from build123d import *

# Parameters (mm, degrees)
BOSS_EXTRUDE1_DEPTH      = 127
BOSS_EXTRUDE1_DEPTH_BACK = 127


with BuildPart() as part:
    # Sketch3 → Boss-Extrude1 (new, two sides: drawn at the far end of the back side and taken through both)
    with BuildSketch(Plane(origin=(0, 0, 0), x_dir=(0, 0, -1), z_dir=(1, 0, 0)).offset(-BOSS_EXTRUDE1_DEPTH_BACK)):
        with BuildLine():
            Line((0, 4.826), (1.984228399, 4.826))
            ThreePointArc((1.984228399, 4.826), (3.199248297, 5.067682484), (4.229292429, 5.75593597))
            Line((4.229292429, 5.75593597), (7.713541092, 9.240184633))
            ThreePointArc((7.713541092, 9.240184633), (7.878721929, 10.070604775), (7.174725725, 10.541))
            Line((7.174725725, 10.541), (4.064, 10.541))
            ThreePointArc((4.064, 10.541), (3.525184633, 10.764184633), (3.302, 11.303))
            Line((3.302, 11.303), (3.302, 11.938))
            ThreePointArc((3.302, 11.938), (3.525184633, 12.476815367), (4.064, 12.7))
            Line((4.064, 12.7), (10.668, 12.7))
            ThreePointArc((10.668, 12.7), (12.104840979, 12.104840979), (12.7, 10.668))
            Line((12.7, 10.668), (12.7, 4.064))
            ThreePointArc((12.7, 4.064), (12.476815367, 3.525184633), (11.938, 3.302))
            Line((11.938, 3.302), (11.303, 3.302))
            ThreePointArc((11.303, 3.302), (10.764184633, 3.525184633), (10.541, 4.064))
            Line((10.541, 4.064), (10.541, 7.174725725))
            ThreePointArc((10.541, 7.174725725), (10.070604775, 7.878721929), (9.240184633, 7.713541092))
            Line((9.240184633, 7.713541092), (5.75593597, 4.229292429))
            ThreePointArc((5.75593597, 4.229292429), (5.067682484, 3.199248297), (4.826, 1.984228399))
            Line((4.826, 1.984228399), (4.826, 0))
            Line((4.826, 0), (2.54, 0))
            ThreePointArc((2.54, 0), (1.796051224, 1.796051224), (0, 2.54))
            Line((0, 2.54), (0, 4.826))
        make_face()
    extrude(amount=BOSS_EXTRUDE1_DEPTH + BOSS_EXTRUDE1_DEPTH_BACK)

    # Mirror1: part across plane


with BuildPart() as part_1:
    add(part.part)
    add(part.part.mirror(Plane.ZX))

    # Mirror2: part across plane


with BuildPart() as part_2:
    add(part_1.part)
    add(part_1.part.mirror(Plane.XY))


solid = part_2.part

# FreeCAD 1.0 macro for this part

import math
import FreeCAD as App
import Part
import Sketcher

V = App.Vector
Q = App.Units.Quantity

doc = App.newDocument("Part")
body = doc.addObject("PartDesign::Body", "Body")

# Sketch on YZ plane
sketch1 = body.newObject("Sketcher::SketchObject", "Sketch")
sketch1.AttachmentSupport = (doc.getObject("YZ_Plane"), [""])
sketch1.MapMode = "FlatFace"
sketch1.addGeometry([
    Part.LineSegment(V(4.826, -1.984228, 0), V(4.826, 0, 0)),  # 0
    Part.LineSegment(V(4.826, 0, 0), V(2.54, 0, 0)),  # 1
    Part.ArcOfCircle(Part.Circle(V(0, 0, 0), V(0, 0, 1), 2.54), math.radians(-90), math.radians(0)),  # 2
    Part.LineSegment(V(0, -2.54, 0), V(0, -4.826, 0)),  # 3
    Part.LineSegment(V(0, -4.826, 0), V(1.984228, -4.826, 0)),  # 4
    Part.ArcOfCircle(Part.Circle(V(1.984228, -8.001, 0), V(0, 0, 1), 3.175), math.radians(45), math.radians(90)),  # 5
    Part.LineSegment(V(4.229292, -5.755936, 0), V(7.713541, -9.240185, 0)),  # 6
    Part.ArcOfCircle(Part.Circle(V(7.174726, -9.779, 0), V(0, 0, 1), 0.762), math.radians(-90), math.radians(45)),  # 7
    Part.LineSegment(V(7.174726, -10.541, 0), V(4.064, -10.541, 0)),  # 8
    Part.ArcOfCircle(Part.Circle(V(4.064, -11.303, 0), V(0, 0, 1), 0.762), math.radians(90), math.radians(180)),  # 9
    Part.LineSegment(V(3.302, -11.303, 0), V(3.302, -11.938, 0)),  # 10
    Part.ArcOfCircle(Part.Circle(V(4.064, -11.938, 0), V(0, 0, 1), 0.762), math.radians(-180), math.radians(-90)),  # 11
    Part.LineSegment(V(4.064, -12.7, 0), V(10.668, -12.7, 0)),  # 12
    Part.ArcOfCircle(Part.Circle(V(10.668, -10.668, 0), V(0, 0, 1), 2.032), math.radians(-90), math.radians(0)),  # 13
    Part.LineSegment(V(12.7, -10.668, 0), V(12.7, -4.064, 0)),  # 14
    Part.ArcOfCircle(Part.Circle(V(11.938, -4.064, 0), V(0, 0, 1), 0.762), math.radians(0), math.radians(90)),  # 15
    Part.LineSegment(V(11.938, -3.302, 0), V(11.303, -3.302, 0)),  # 16
    Part.ArcOfCircle(Part.Circle(V(11.303, -4.064, 0), V(0, 0, 1), 0.762), math.radians(90), math.radians(180)),  # 17
    Part.LineSegment(V(10.541, -4.064, 0), V(10.541, -7.174726, 0)),  # 18
    Part.ArcOfCircle(Part.Circle(V(9.779, -7.174726, 0), V(0, 0, 1), 0.762), math.radians(-135), math.radians(0)),  # 19
    Part.LineSegment(V(9.240185, -7.713541, 0), V(5.755936, -4.229292, 0)),  # 20
    Part.ArcOfCircle(Part.Circle(V(8.001, -1.984228, 0), V(0, 0, 1), 3.175), math.radians(180), math.radians(225)),  # 21
], False)
sketch1.addConstraint([
    Sketcher.Constraint("Coincident", 0, 2, 1, 1),
    Sketcher.Constraint("Coincident", 1, 2, 2, 2),
    Sketcher.Constraint("Coincident", 2, 1, 3, 1),
    Sketcher.Constraint("Coincident", 3, 2, 4, 1),
    Sketcher.Constraint("Tangent", 4, 2, 5, 2),
    Sketcher.Constraint("Tangent", 5, 1, 6, 1),
    Sketcher.Constraint("Tangent", 6, 2, 7, 2),
    Sketcher.Constraint("Tangent", 7, 1, 8, 1),
    Sketcher.Constraint("Tangent", 8, 2, 9, 1),
    Sketcher.Constraint("Tangent", 9, 2, 10, 1),
    Sketcher.Constraint("Tangent", 10, 2, 11, 1),
    Sketcher.Constraint("Tangent", 11, 2, 12, 1),
    Sketcher.Constraint("Tangent", 12, 2, 13, 1),
    Sketcher.Constraint("Tangent", 13, 2, 14, 1),
    Sketcher.Constraint("Tangent", 14, 2, 15, 1),
    Sketcher.Constraint("Tangent", 15, 2, 16, 1),
    Sketcher.Constraint("Tangent", 16, 2, 17, 1),
    Sketcher.Constraint("Tangent", 17, 2, 18, 1),
    Sketcher.Constraint("Tangent", 18, 2, 19, 2),
    Sketcher.Constraint("Tangent", 19, 1, 20, 1),
    Sketcher.Constraint("Tangent", 20, 2, 21, 2),
    Sketcher.Constraint("Tangent", 21, 1, 0, 1),
    Sketcher.Constraint("Vertical", 0),
    Sketcher.Constraint("Horizontal", 1),
    Sketcher.Constraint("Vertical", 3),
    Sketcher.Constraint("Horizontal", 4),
    Sketcher.Constraint("Horizontal", 8),
    Sketcher.Constraint("Vertical", 10),
    Sketcher.Constraint("Horizontal", 12),
    Sketcher.Constraint("Vertical", 14),
    Sketcher.Constraint("Horizontal", 16),
    Sketcher.Constraint("Vertical", 18),
    Sketcher.Constraint("Coincident", 2, 3, -1, 1),
    Sketcher.Constraint("Equal", 7, 9),
    Sketcher.Constraint("Equal", 9, 11),
    Sketcher.Constraint("Equal", 11, 15),
    Sketcher.Constraint("Equal", 15, 17),
    Sketcher.Constraint("Equal", 17, 19),
    Sketcher.Constraint("Equal", 5, 21),
    Sketcher.Constraint("PointOnObject", 0, 2, -1),
    Sketcher.Constraint("PointOnObject", 2, 1, -2),
    Sketcher.Constraint("Parallel", 6, 20),
    Sketcher.Constraint("Equal", 4, 0),
    Sketcher.Constraint("Equal", 1, 3),
    Sketcher.Constraint("Equal", 16, 10),
    Sketcher.Constraint("Equal", 12, 14),
    Sketcher.Constraint("Equal", 8, 18),
    Sketcher.Constraint("Equal", 6, 20),
    Sketcher.Constraint("Radius", 2, Q("0.1 in")),
    Sketcher.Constraint("Radius", 7, Q("0.03 in")),
    Sketcher.Constraint("Radius", 13, Q("0.08 in")),
    Sketcher.Constraint("Radius", 5, Q("0.125 in")),
    Sketcher.Constraint("DistanceX", 1, 2, 1, 1, Q("0.09 in")),
    Sketcher.Constraint("DistanceX", 12, 1, 12, 2, Q("0.26 in")),
    Sketcher.Constraint("DistanceY", 11, 2, -1, 1, Q("0.5 in")),
    Sketcher.Constraint("DistanceY", 8, 2, 5, 3, Q("0.1 in")),
    Sketcher.Constraint("DistanceX", 4, 1, 4, 2, Q("1.984228 mm")),
])
pad1 = body.newObject("PartDesign::Pad", "Pad")
pad1.Profile = sketch1
pad1.Type = "TwoLengths"
pad1.Length = Q("5 in")
pad1.Length2 = Q("5 in")
body2 = doc.addObject("PartDesign::Body", "Body001")
doc.recompute()

body2.BaseFeature = body
doc.recompute()

mirroring = doc.addObject("Part::Mirroring", "Mirroring")
mirroring.Source = body
mirroring.Base = V(0, 0, 0)
mirroring.Normal = V(0, 1, 0)
body3 = doc.addObject("PartDesign::Body", "Body002")
body3.BaseFeature = mirroring
boolean = body2.newObject("PartDesign::Boolean", "Boolean")
boolean.Type = "Fuse"
boolean.addObjects([body3])
doc.recompute()
body4 = doc.addObject("PartDesign::Body", "Body003")
doc.recompute()

body4.BaseFeature = body2
doc.recompute()

mirroring2 = doc.addObject("Part::Mirroring", "Mirroring001")
mirroring2.Source = body2
mirroring2.Base = V(0, 0, 0)
mirroring2.Normal = V(0, 0, 1)
body5 = doc.addObject("PartDesign::Body", "Body004")
body5.BaseFeature = mirroring2
boolean2 = body4.newObject("PartDesign::Boolean", "Boolean001")
boolean2.Type = "Fuse"
boolean2.addObjects([body5])
doc.recompute()
mirroring.Visibility = False
mirroring2.Visibility = False

doc.recompute()
